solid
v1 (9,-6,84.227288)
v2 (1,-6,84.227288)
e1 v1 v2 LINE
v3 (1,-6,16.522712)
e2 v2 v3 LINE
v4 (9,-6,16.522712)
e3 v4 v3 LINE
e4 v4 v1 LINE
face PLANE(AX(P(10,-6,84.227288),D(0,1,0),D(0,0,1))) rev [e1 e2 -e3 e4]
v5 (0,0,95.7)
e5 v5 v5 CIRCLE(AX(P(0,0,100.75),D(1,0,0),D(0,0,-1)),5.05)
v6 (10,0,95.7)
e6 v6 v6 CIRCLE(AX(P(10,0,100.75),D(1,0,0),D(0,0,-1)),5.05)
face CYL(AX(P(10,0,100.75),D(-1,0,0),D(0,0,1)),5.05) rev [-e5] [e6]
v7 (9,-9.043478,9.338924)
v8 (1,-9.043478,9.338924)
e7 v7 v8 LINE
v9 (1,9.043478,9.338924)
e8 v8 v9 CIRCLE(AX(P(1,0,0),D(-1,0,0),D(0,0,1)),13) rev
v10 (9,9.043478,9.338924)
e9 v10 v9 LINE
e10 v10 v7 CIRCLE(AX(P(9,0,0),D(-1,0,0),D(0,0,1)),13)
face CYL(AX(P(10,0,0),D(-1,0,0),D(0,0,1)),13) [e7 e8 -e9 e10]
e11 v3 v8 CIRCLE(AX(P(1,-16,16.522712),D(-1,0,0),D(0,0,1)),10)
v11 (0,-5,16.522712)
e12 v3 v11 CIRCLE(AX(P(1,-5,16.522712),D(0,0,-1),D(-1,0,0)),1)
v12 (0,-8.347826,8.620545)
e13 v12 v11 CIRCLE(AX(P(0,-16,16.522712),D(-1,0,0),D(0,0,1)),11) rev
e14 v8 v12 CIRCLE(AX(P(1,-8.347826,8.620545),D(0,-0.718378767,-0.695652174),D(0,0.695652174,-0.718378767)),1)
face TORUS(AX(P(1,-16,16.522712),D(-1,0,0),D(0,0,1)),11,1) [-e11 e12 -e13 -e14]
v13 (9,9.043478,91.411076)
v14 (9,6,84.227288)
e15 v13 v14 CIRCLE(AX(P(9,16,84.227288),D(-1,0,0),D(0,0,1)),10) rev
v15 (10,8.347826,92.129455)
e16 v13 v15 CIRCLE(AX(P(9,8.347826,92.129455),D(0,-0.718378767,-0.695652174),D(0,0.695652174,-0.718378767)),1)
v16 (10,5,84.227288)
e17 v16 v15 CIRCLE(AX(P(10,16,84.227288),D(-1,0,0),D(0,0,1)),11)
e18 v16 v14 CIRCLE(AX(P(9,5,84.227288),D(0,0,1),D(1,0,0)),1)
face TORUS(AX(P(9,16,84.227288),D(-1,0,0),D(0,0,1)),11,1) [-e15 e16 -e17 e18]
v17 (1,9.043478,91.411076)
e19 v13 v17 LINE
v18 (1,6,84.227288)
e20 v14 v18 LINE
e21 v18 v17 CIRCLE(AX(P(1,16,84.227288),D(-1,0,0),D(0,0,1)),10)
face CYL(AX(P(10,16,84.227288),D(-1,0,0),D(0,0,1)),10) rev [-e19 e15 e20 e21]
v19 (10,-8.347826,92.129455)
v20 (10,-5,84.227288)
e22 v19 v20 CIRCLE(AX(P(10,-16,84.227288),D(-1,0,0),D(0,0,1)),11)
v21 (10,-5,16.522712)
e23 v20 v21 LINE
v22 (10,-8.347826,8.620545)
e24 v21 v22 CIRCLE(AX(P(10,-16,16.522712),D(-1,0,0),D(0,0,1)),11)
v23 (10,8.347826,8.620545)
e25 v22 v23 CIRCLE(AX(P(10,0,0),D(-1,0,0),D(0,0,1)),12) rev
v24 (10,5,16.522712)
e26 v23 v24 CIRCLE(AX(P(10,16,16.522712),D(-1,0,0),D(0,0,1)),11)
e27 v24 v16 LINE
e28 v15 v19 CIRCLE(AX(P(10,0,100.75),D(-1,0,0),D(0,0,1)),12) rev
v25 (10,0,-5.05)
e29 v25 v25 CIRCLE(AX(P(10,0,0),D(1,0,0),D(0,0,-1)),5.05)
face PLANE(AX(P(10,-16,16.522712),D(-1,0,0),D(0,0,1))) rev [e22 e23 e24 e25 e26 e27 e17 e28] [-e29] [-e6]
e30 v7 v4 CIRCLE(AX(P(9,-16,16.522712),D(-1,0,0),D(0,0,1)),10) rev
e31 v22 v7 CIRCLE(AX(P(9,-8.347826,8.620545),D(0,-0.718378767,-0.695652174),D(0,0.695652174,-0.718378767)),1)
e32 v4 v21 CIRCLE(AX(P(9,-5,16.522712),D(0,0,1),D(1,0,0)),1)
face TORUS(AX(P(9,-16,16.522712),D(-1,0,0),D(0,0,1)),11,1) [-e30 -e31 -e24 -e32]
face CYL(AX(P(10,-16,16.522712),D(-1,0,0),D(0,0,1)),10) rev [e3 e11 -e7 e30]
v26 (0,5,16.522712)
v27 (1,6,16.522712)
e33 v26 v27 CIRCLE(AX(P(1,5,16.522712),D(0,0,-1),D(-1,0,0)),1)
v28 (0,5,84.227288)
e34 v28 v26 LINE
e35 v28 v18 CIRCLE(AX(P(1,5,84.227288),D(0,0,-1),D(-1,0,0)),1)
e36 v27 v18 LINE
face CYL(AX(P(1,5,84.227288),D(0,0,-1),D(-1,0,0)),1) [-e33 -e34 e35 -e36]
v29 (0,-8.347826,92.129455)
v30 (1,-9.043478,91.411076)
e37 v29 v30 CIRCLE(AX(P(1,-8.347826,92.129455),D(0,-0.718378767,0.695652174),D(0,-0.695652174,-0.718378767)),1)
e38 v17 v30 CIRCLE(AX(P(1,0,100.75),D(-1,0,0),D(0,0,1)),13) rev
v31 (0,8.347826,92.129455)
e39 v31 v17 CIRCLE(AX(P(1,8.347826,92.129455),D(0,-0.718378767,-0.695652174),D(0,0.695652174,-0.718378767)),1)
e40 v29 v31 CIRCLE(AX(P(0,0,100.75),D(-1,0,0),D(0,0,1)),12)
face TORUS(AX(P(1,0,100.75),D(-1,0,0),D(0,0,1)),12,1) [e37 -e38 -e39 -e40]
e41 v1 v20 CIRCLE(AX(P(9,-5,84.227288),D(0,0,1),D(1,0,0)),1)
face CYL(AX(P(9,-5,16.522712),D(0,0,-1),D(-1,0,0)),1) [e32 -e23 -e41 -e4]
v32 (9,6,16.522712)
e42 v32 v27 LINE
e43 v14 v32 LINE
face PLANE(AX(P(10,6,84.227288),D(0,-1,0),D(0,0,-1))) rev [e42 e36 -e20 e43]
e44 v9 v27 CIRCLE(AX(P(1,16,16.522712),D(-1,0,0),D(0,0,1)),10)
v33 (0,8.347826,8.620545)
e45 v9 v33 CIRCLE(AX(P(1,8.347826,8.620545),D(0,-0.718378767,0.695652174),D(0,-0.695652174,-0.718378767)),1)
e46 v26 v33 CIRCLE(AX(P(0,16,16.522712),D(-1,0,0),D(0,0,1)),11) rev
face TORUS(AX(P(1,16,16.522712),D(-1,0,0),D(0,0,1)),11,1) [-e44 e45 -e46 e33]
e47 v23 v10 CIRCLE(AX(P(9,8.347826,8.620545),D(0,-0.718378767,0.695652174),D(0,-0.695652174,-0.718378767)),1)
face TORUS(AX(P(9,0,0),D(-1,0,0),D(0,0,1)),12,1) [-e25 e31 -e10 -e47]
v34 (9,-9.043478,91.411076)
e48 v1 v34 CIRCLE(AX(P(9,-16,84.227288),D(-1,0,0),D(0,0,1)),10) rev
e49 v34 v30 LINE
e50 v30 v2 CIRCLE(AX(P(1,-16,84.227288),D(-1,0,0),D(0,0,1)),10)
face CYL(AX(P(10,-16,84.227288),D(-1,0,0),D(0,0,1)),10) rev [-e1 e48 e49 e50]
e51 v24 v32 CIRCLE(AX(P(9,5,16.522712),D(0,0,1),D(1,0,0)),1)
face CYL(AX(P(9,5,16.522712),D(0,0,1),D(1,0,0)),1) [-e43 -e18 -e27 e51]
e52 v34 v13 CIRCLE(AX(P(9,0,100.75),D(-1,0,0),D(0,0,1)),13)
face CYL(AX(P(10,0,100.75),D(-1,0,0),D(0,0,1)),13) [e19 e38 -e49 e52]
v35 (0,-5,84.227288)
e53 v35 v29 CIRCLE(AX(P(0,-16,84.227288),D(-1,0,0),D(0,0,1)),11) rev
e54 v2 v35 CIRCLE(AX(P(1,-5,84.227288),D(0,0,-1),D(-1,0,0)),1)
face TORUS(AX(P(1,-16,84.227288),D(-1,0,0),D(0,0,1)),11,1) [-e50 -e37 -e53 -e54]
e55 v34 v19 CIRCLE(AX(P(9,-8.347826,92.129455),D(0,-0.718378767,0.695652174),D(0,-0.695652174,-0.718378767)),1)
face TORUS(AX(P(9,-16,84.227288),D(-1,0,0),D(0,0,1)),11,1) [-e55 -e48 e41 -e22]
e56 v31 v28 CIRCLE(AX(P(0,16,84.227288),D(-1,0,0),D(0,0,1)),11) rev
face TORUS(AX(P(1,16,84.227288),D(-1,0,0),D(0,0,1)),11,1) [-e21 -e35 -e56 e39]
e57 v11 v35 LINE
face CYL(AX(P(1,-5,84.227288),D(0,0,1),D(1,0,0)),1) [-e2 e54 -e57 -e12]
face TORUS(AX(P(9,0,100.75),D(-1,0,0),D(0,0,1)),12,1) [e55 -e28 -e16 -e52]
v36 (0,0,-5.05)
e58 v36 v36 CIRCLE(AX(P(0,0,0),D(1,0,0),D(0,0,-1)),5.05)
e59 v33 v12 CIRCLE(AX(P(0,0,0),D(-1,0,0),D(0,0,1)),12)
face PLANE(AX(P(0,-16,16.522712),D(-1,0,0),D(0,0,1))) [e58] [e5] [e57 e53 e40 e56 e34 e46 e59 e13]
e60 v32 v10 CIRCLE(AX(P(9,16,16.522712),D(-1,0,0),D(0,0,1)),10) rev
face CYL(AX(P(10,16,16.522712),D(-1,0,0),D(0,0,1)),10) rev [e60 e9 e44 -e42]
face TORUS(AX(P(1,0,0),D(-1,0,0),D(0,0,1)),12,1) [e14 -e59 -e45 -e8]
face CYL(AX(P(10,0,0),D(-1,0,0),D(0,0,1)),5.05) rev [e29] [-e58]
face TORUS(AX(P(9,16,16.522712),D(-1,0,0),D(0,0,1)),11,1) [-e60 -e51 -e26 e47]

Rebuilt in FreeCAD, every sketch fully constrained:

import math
import FreeCAD as App
import Part
import Sketcher


def edges_at(feature, points):
    """Names of the edges that pass closest to the given points."""
    edges = feature.Shape.Edges
    near = lambda p: min(range(len(edges)), key=lambda i: edges[i].distToShape(Part.Vertex(*p))[0])
    return sorted({f"Edge{near(p) + 1}" for p in points})

doc = App.newDocument("Part")
body = doc.addObject("PartDesign::Body", "Body")

sketch1 = body.newObject("Sketcher::SketchObject", "Sketch")
sketch1.AttachmentSupport = (doc.getObject("YZ_Plane"), [""])
sketch1.MapMode = "FlatFace"
sketch1.addGeometry(Part.LineSegment(App.Vector(6, 17, 0), App.Vector(6, 84, 0)), False)
sketch1.addGeometry(Part.ArcOfCircle(Part.Circle(App.Vector(16, 84, 0), App.Vector(0, 0, 1), 10), math.radians(134), math.radians(180)), False)
sketch1.addGeometry(Part.ArcOfCircle(Part.Circle(App.Vector(0, 101, 0), App.Vector(0, 0, 1), 13), math.radians(-46), math.radians(226)), False)
sketch1.addGeometry(Part.ArcOfCircle(Part.Circle(App.Vector(-16, 84, 0), App.Vector(0, 0, 1), 10), math.radians(0), math.radians(46)), False)
sketch1.addGeometry(Part.LineSegment(App.Vector(-6, 84, 0), App.Vector(-6, 17, 0)), False)
sketch1.addGeometry(Part.ArcOfCircle(Part.Circle(App.Vector(-16, 17, 0), App.Vector(0, 0, 1), 10), math.radians(-46), math.radians(0)), False)
sketch1.addGeometry(Part.ArcOfCircle(Part.Circle(App.Vector(0, 0, 0), App.Vector(0, 0, 1), 13), math.radians(134), math.radians(406)), False)
sketch1.addGeometry(Part.ArcOfCircle(Part.Circle(App.Vector(16, 17, 0), App.Vector(0, 0, 1), 10), math.radians(180), math.radians(226)), False)
sketch1.addGeometry(Part.Circle(App.Vector(0, 0, 0), App.Vector(0, 0, 1), 5), False)
sketch1.addGeometry(Part.Circle(App.Vector(0, 101, 0), App.Vector(0, 0, 1), 5), False)
sketch1.addConstraint(Sketcher.Constraint("Tangent", 0, 2, 1, 2))
sketch1.addConstraint(Sketcher.Constraint("Tangent", 1, 1, 2, 1))
sketch1.addConstraint(Sketcher.Constraint("Tangent", 2, 2, 3, 2))
sketch1.addConstraint(Sketcher.Constraint("Tangent", 3, 1, 4, 1))
sketch1.addConstraint(Sketcher.Constraint("Tangent", 4, 2, 5, 2))
sketch1.addConstraint(Sketcher.Constraint("Tangent", 5, 1, 6, 1))
sketch1.addConstraint(Sketcher.Constraint("Tangent", 6, 2, 7, 2))
sketch1.addConstraint(Sketcher.Constraint("Tangent", 7, 1, 0, 1))
sketch1.addConstraint(Sketcher.Constraint("Vertical", 0))
sketch1.addConstraint(Sketcher.Constraint("Vertical", 4))
sketch1.addConstraint(Sketcher.Constraint("Coincident", 6, 3, -1, 1))
sketch1.addConstraint(Sketcher.Constraint("Coincident", 8, 3, -1, 1))
sketch1.addConstraint(Sketcher.Constraint("Coincident", 9, 3, 2, 3))
sketch1.addConstraint(Sketcher.Constraint("Equal", 1, 3))
sketch1.addConstraint(Sketcher.Constraint("Equal", 3, 5))
sketch1.addConstraint(Sketcher.Constraint("Equal", 2, 6))
sketch1.addConstraint(Sketcher.Constraint("Equal", 5, 7))
sketch1.addConstraint(Sketcher.Constraint("Equal", 8, 9))
sketch1.addConstraint(Sketcher.Constraint("Symmetric", 1, 3, 3, 3, -2))
sketch1.addConstraint(Sketcher.Constraint("Radius", 1, 10.0))
sketch1.addConstraint(Sketcher.Constraint("Radius", 2, 13.0))
sketch1.addConstraint(Sketcher.Constraint("Diameter", 8, 10.1))
sketch1.addConstraint(Sketcher.Constraint("DistanceX", -1, 1, 1, 3, 16.0))
sketch1.addConstraint(Sketcher.Constraint("DistanceY", -1, 1, 2, 3, 100.75))
pad1 = body.newObject("PartDesign::Pad", "Pad")
pad1.Profile = sketch1
pad1.Length = 10
doc.recompute()

fillet = body.newObject("PartDesign::Fillet", "Fillet")
fillet.Base = (pad1, edges_at(pad1, [
    (0, 6, 50.375),
    (0, 6.792, 12.622),
    (0, 0, -13),
    (0, -6.792, 12.622),
    (10, 6.792, 12.622),
    (10, 6, 50.375),
    (10, 6.792, 88.128),
    (10, 0, 113.75),
    (10, -6.792, 88.128),
    (10, -6, 50.375),
    (10, -6.792, 12.622),
    (0, -6, 50.375),
    (10, 0, -13),
    (0, -6.792, 88.128),
    (0, 0, 113.75),
    (0, 6.792, 88.128),
]))
fillet.Radius = 1

doc.recompute()
